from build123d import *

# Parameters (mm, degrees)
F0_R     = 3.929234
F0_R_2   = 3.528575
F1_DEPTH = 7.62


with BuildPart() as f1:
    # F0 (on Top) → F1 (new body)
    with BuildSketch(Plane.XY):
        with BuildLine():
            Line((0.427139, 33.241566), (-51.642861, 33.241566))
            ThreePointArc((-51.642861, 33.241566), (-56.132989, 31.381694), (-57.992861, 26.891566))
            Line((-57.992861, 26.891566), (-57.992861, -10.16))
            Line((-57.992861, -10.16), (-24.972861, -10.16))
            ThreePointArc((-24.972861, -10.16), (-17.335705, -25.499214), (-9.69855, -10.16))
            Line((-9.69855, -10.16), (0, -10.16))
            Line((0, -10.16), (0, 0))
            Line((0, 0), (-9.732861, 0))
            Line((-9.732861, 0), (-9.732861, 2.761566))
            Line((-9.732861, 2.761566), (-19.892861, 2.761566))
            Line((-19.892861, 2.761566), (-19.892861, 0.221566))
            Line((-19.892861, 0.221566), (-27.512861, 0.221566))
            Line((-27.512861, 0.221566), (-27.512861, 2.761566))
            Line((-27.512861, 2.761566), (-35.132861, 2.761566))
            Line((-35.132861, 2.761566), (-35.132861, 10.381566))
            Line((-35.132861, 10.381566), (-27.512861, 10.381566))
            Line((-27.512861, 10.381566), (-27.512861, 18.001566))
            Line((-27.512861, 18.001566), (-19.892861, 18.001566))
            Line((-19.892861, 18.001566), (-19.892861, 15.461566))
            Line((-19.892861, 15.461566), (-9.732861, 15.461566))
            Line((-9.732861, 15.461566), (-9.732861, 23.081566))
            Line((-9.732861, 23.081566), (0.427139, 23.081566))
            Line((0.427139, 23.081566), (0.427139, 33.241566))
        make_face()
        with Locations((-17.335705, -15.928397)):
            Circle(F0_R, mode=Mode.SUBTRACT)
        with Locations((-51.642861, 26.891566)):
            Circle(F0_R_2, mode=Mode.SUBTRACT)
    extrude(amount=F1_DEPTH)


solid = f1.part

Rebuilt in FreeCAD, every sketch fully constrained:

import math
import FreeCAD as App
import Part
import Sketcher

V = App.Vector
Q = App.Units.Quantity

doc = App.newDocument("Part")
params = doc.addObject("Spreadsheet::Sheet", "Params")
for row, (alias, value) in enumerate([
    ("sketch1_radius", "0.25 in"),
    ("sketch1_width", "1.3 in"),
    ("sketch1_width2", "0.4 in"),
    ("sketch1_width3", "0.3 in"),
    ("sketch1_height", "0.1 in"),
    ("pad1_length", "0.3 in"),
], start=1):
    params.set(f"A{row}", alias)
    params.set(f"B{row}", "=" + value)
    params.setAlias(f"B{row}", alias)

body = doc.addObject("PartDesign::Body", "Body")

# Sketch on XY plane
sketch1 = body.newObject("Sketcher::SketchObject", "Sketch")
sketch1.AttachmentSupport = (doc.getObject("XY_Plane"), [""])
sketch1.MapMode = "FlatFace"
sketch1.addGeometry(Part.LineSegment(V(0.4, 33.2, 0), V(-51.6, 33.2, 0)), False)
sketch1.addGeometry(Part.ArcOfCircle(Part.Circle(V(-51.6, 26.9, 0), V(0, 0, 1), 6.4), math.radians(90), math.radians(180)), False)
sketch1.addGeometry(Part.LineSegment(V(-58, 26.9, 0), V(-58, -10.2, 0)), False)
sketch1.addGeometry(Part.LineSegment(V(-58, -10.2, 0), V(-25, -10.2, 0)), False)
sketch1.addGeometry(Part.ArcOfCircle(Part.Circle(V(-17.3, -15.9, 0), V(0, 0, 1), 9.6), math.radians(143), math.radians(397)), False)
sketch1.addGeometry(Part.LineSegment(V(-9.7, -10.2, 0), V(0, -10.2, 0)), False)
sketch1.addGeometry(Part.LineSegment(V(0, -10.2, 0), V(0, 0, 0)), False)
sketch1.addGeometry(Part.LineSegment(V(0, 0, 0), V(-9.7, 0, 0)), False)
sketch1.addGeometry(Part.LineSegment(V(-9.7, 0, 0), V(-9.7, 2.8, 0)), False)
sketch1.addGeometry(Part.LineSegment(V(-9.7, 2.8, 0), V(-19.9, 2.8, 0)), False)
sketch1.addGeometry(Part.LineSegment(V(-19.9, 2.8, 0), V(-19.9, 0.2, 0)), False)
sketch1.addGeometry(Part.LineSegment(V(-19.9, 0.2, 0), V(-27.5, 0.2, 0)), False)
sketch1.addGeometry(Part.LineSegment(V(-27.5, 0.2, 0), V(-27.5, 2.8, 0)), False)
sketch1.addGeometry(Part.LineSegment(V(-27.5, 2.8, 0), V(-35.1, 2.8, 0)), False)
sketch1.addGeometry(Part.LineSegment(V(-35.1, 2.8, 0), V(-35.1, 10.4, 0)), False)
sketch1.addGeometry(Part.LineSegment(V(-35.1, 10.4, 0), V(-27.5, 10.4, 0)), False)
sketch1.addGeometry(Part.LineSegment(V(-27.5, 10.4, 0), V(-27.5, 18, 0)), False)
sketch1.addGeometry(Part.LineSegment(V(-27.5, 18, 0), V(-19.9, 18, 0)), False)
sketch1.addGeometry(Part.LineSegment(V(-19.9, 18, 0), V(-19.9, 15.5, 0)), False)
sketch1.addGeometry(Part.LineSegment(V(-19.9, 15.5, 0), V(-9.7, 15.5, 0)), False)
sketch1.addGeometry(Part.LineSegment(V(-9.7, 15.5, 0), V(-9.7, 23.1, 0)), False)
sketch1.addGeometry(Part.LineSegment(V(-9.7, 23.1, 0), V(0.4, 23.1, 0)), False)
sketch1.addGeometry(Part.LineSegment(V(0.4, 23.1, 0), V(0.4, 33.2, 0)), False)
sketch1.addGeometry(Part.Circle(V(-17.3, -15.9, 0), V(0, 0, 1), 3.9), False)
sketch1.addGeometry(Part.Circle(V(-51.6, 26.9, 0), V(0, 0, 1), 3.5), False)
sketch1.addConstraint(Sketcher.Constraint("Tangent", 0, 2, 1, 1))
sketch1.addConstraint(Sketcher.Constraint("Tangent", 1, 2, 2, 1))
sketch1.addConstraint(Sketcher.Constraint("Coincident", 2, 2, 3, 1))
sketch1.addConstraint(Sketcher.Constraint("Coincident", 3, 2, 4, 1))
sketch1.addConstraint(Sketcher.Constraint("Coincident", 4, 2, 5, 1))
sketch1.addConstraint(Sketcher.Constraint("Coincident", 5, 2, 6, 1))
sketch1.addConstraint(Sketcher.Constraint("Coincident", 6, 2, 7, 1))
sketch1.addConstraint(Sketcher.Constraint("Coincident", 7, 2, 8, 1))
sketch1.addConstraint(Sketcher.Constraint("Coincident", 8, 2, 9, 1))
sketch1.addConstraint(Sketcher.Constraint("Coincident", 9, 2, 10, 1))
sketch1.addConstraint(Sketcher.Constraint("Coincident", 10, 2, 11, 1))
sketch1.addConstraint(Sketcher.Constraint("Coincident", 11, 2, 12, 1))
sketch1.addConstraint(Sketcher.Constraint("Coincident", 12, 2, 13, 1))
sketch1.addConstraint(Sketcher.Constraint("Coincident", 13, 2, 14, 1))
sketch1.addConstraint(Sketcher.Constraint("Coincident", 14, 2, 15, 1))
sketch1.addConstraint(Sketcher.Constraint("Coincident", 15, 2, 16, 1))
sketch1.addConstraint(Sketcher.Constraint("Coincident", 16, 2, 17, 1))
sketch1.addConstraint(Sketcher.Constraint("Coincident", 17, 2, 18, 1))
sketch1.addConstraint(Sketcher.Constraint("Coincident", 18, 2, 19, 1))
sketch1.addConstraint(Sketcher.Constraint("Coincident", 19, 2, 20, 1))
sketch1.addConstraint(Sketcher.Constraint("Coincident", 20, 2, 21, 1))
sketch1.addConstraint(Sketcher.Constraint("Coincident", 21, 2, 22, 1))
sketch1.addConstraint(Sketcher.Constraint("Coincident", 22, 2, 0, 1))
sketch1.addConstraint(Sketcher.Constraint("Horizontal", 0))
sketch1.addConstraint(Sketcher.Constraint("Vertical", 2))
sketch1.addConstraint(Sketcher.Constraint("Horizontal", 3))
sketch1.addConstraint(Sketcher.Constraint("Horizontal", 5))
sketch1.addConstraint(Sketcher.Constraint("Vertical", 6))
sketch1.addConstraint(Sketcher.Constraint("Horizontal", 7))
sketch1.addConstraint(Sketcher.Constraint("Vertical", 8))
sketch1.addConstraint(Sketcher.Constraint("Horizontal", 9))
sketch1.addConstraint(Sketcher.Constraint("Vertical", 10))
sketch1.addConstraint(Sketcher.Constraint("Horizontal", 11))
sketch1.addConstraint(Sketcher.Constraint("Vertical", 12))
sketch1.addConstraint(Sketcher.Constraint("Horizontal", 13))
sketch1.addConstraint(Sketcher.Constraint("Vertical", 14))
sketch1.addConstraint(Sketcher.Constraint("Horizontal", 15))
sketch1.addConstraint(Sketcher.Constraint("Vertical", 16))
sketch1.addConstraint(Sketcher.Constraint("Horizontal", 17))
sketch1.addConstraint(Sketcher.Constraint("Vertical", 18))
sketch1.addConstraint(Sketcher.Constraint("Horizontal", 19))
sketch1.addConstraint(Sketcher.Constraint("Vertical", 20))
sketch1.addConstraint(Sketcher.Constraint("Horizontal", 21))
sketch1.addConstraint(Sketcher.Constraint("Vertical", 22))
sketch1.addConstraint(Sketcher.Constraint("Coincident", 6, 2, -1, 1))
sketch1.addConstraint(Sketcher.Constraint("Coincident", 23, 3, 4, 3))
sketch1.addConstraint(Sketcher.Constraint("Coincident", 24, 3, 1, 3))
sketch1.addConstraint(Sketcher.Constraint("Horizontal", 3, 2, 4, 2))
sketch1.addConstraint(Sketcher.Constraint("Horizontal", 9, 2, 12, 2))
sketch1.addConstraint(Sketcher.Constraint("Vertical", 12, 2, 15, 2))
sketch1.addConstraint(Sketcher.Constraint("Vertical", 10, 2, 17, 2))
sketch1.addConstraint(Sketcher.Constraint("Vertical", 8, 2, 19, 2))
sketch1.addConstraint(Sketcher.Constraint("Equal", 11, 13))
sketch1.addConstraint(Sketcher.Constraint("Equal", 19, 21))
sketch1.addConstraint(Sketcher.Constraint("Equal", 21, 6))
sketch1.addConstraint(Sketcher.Constraint("Equal", 17, 14))
sketch1.addConstraint(Sketcher.Constraint("Equal", 14, 16))
sketch1.addConstraint(Sketcher.Constraint("Equal", 12, 18))
sketch1.addConstraint(Sketcher.Constraint("Equal", 16, 20))
sketch1.addConstraint(Sketcher.Constraint("Equal", 6, 22))
sketch1.addConstraint(Sketcher.Constraint("Radius", 1, Q("0.25 in")))
sketch1.addConstraint(Sketcher.Constraint("DistanceX", 3, 1, 3, 2, Q("1.3 in")))
sketch1.addConstraint(Sketcher.Constraint("DistanceX", 9, 2, 9, 1, Q("0.4 in")))
sketch1.addConstraint(Sketcher.Constraint("DistanceX", 11, 2, 11, 1, Q("0.3 in")))
sketch1.addConstraint(Sketcher.Constraint("DistanceY", 10, 2, 10, 1, Q("0.1 in")))
sketch1.addConstraint(Sketcher.Constraint("DistanceX", 0, 2, 0, 1, Q("2.05 in")))
sketch1.addConstraint(Sketcher.Constraint("Diameter", 23, Q("7.858468 mm")))
sketch1.addConstraint(Sketcher.Constraint("Diameter", 24, Q("7.05715 mm")))
sketch1.addConstraint(Sketcher.Constraint("Radius", 4, Q("9.570817 mm")))
sketch1.addConstraint(Sketcher.Constraint("DistanceX", 5, 1, 5, 2, Q("9.69855 mm")))
sketch1.addConstraint(Sketcher.Constraint("DistanceX", 7, 2, 7, 1, Q("9.732861 mm")))
sketch1.addConstraint(Sketcher.Constraint("DistanceY", 2, 2, 2, 1, Q("37.051566 mm")))
sketch1.setExpression("Constraints[60]", "Params.sketch1_radius")
sketch1.setExpression("Constraints[61]", "Params.sketch1_width")
sketch1.setExpression("Constraints[62]", "Params.sketch1_width2")
sketch1.setExpression("Constraints[63]", "Params.sketch1_width3")
sketch1.setExpression("Constraints[64]", "Params.sketch1_height")
pad1 = body.newObject("PartDesign::Pad", "Pad")
pad1.Profile = sketch1
pad1.setExpression("Length", "Params.pad1_length")

doc.recompute()
